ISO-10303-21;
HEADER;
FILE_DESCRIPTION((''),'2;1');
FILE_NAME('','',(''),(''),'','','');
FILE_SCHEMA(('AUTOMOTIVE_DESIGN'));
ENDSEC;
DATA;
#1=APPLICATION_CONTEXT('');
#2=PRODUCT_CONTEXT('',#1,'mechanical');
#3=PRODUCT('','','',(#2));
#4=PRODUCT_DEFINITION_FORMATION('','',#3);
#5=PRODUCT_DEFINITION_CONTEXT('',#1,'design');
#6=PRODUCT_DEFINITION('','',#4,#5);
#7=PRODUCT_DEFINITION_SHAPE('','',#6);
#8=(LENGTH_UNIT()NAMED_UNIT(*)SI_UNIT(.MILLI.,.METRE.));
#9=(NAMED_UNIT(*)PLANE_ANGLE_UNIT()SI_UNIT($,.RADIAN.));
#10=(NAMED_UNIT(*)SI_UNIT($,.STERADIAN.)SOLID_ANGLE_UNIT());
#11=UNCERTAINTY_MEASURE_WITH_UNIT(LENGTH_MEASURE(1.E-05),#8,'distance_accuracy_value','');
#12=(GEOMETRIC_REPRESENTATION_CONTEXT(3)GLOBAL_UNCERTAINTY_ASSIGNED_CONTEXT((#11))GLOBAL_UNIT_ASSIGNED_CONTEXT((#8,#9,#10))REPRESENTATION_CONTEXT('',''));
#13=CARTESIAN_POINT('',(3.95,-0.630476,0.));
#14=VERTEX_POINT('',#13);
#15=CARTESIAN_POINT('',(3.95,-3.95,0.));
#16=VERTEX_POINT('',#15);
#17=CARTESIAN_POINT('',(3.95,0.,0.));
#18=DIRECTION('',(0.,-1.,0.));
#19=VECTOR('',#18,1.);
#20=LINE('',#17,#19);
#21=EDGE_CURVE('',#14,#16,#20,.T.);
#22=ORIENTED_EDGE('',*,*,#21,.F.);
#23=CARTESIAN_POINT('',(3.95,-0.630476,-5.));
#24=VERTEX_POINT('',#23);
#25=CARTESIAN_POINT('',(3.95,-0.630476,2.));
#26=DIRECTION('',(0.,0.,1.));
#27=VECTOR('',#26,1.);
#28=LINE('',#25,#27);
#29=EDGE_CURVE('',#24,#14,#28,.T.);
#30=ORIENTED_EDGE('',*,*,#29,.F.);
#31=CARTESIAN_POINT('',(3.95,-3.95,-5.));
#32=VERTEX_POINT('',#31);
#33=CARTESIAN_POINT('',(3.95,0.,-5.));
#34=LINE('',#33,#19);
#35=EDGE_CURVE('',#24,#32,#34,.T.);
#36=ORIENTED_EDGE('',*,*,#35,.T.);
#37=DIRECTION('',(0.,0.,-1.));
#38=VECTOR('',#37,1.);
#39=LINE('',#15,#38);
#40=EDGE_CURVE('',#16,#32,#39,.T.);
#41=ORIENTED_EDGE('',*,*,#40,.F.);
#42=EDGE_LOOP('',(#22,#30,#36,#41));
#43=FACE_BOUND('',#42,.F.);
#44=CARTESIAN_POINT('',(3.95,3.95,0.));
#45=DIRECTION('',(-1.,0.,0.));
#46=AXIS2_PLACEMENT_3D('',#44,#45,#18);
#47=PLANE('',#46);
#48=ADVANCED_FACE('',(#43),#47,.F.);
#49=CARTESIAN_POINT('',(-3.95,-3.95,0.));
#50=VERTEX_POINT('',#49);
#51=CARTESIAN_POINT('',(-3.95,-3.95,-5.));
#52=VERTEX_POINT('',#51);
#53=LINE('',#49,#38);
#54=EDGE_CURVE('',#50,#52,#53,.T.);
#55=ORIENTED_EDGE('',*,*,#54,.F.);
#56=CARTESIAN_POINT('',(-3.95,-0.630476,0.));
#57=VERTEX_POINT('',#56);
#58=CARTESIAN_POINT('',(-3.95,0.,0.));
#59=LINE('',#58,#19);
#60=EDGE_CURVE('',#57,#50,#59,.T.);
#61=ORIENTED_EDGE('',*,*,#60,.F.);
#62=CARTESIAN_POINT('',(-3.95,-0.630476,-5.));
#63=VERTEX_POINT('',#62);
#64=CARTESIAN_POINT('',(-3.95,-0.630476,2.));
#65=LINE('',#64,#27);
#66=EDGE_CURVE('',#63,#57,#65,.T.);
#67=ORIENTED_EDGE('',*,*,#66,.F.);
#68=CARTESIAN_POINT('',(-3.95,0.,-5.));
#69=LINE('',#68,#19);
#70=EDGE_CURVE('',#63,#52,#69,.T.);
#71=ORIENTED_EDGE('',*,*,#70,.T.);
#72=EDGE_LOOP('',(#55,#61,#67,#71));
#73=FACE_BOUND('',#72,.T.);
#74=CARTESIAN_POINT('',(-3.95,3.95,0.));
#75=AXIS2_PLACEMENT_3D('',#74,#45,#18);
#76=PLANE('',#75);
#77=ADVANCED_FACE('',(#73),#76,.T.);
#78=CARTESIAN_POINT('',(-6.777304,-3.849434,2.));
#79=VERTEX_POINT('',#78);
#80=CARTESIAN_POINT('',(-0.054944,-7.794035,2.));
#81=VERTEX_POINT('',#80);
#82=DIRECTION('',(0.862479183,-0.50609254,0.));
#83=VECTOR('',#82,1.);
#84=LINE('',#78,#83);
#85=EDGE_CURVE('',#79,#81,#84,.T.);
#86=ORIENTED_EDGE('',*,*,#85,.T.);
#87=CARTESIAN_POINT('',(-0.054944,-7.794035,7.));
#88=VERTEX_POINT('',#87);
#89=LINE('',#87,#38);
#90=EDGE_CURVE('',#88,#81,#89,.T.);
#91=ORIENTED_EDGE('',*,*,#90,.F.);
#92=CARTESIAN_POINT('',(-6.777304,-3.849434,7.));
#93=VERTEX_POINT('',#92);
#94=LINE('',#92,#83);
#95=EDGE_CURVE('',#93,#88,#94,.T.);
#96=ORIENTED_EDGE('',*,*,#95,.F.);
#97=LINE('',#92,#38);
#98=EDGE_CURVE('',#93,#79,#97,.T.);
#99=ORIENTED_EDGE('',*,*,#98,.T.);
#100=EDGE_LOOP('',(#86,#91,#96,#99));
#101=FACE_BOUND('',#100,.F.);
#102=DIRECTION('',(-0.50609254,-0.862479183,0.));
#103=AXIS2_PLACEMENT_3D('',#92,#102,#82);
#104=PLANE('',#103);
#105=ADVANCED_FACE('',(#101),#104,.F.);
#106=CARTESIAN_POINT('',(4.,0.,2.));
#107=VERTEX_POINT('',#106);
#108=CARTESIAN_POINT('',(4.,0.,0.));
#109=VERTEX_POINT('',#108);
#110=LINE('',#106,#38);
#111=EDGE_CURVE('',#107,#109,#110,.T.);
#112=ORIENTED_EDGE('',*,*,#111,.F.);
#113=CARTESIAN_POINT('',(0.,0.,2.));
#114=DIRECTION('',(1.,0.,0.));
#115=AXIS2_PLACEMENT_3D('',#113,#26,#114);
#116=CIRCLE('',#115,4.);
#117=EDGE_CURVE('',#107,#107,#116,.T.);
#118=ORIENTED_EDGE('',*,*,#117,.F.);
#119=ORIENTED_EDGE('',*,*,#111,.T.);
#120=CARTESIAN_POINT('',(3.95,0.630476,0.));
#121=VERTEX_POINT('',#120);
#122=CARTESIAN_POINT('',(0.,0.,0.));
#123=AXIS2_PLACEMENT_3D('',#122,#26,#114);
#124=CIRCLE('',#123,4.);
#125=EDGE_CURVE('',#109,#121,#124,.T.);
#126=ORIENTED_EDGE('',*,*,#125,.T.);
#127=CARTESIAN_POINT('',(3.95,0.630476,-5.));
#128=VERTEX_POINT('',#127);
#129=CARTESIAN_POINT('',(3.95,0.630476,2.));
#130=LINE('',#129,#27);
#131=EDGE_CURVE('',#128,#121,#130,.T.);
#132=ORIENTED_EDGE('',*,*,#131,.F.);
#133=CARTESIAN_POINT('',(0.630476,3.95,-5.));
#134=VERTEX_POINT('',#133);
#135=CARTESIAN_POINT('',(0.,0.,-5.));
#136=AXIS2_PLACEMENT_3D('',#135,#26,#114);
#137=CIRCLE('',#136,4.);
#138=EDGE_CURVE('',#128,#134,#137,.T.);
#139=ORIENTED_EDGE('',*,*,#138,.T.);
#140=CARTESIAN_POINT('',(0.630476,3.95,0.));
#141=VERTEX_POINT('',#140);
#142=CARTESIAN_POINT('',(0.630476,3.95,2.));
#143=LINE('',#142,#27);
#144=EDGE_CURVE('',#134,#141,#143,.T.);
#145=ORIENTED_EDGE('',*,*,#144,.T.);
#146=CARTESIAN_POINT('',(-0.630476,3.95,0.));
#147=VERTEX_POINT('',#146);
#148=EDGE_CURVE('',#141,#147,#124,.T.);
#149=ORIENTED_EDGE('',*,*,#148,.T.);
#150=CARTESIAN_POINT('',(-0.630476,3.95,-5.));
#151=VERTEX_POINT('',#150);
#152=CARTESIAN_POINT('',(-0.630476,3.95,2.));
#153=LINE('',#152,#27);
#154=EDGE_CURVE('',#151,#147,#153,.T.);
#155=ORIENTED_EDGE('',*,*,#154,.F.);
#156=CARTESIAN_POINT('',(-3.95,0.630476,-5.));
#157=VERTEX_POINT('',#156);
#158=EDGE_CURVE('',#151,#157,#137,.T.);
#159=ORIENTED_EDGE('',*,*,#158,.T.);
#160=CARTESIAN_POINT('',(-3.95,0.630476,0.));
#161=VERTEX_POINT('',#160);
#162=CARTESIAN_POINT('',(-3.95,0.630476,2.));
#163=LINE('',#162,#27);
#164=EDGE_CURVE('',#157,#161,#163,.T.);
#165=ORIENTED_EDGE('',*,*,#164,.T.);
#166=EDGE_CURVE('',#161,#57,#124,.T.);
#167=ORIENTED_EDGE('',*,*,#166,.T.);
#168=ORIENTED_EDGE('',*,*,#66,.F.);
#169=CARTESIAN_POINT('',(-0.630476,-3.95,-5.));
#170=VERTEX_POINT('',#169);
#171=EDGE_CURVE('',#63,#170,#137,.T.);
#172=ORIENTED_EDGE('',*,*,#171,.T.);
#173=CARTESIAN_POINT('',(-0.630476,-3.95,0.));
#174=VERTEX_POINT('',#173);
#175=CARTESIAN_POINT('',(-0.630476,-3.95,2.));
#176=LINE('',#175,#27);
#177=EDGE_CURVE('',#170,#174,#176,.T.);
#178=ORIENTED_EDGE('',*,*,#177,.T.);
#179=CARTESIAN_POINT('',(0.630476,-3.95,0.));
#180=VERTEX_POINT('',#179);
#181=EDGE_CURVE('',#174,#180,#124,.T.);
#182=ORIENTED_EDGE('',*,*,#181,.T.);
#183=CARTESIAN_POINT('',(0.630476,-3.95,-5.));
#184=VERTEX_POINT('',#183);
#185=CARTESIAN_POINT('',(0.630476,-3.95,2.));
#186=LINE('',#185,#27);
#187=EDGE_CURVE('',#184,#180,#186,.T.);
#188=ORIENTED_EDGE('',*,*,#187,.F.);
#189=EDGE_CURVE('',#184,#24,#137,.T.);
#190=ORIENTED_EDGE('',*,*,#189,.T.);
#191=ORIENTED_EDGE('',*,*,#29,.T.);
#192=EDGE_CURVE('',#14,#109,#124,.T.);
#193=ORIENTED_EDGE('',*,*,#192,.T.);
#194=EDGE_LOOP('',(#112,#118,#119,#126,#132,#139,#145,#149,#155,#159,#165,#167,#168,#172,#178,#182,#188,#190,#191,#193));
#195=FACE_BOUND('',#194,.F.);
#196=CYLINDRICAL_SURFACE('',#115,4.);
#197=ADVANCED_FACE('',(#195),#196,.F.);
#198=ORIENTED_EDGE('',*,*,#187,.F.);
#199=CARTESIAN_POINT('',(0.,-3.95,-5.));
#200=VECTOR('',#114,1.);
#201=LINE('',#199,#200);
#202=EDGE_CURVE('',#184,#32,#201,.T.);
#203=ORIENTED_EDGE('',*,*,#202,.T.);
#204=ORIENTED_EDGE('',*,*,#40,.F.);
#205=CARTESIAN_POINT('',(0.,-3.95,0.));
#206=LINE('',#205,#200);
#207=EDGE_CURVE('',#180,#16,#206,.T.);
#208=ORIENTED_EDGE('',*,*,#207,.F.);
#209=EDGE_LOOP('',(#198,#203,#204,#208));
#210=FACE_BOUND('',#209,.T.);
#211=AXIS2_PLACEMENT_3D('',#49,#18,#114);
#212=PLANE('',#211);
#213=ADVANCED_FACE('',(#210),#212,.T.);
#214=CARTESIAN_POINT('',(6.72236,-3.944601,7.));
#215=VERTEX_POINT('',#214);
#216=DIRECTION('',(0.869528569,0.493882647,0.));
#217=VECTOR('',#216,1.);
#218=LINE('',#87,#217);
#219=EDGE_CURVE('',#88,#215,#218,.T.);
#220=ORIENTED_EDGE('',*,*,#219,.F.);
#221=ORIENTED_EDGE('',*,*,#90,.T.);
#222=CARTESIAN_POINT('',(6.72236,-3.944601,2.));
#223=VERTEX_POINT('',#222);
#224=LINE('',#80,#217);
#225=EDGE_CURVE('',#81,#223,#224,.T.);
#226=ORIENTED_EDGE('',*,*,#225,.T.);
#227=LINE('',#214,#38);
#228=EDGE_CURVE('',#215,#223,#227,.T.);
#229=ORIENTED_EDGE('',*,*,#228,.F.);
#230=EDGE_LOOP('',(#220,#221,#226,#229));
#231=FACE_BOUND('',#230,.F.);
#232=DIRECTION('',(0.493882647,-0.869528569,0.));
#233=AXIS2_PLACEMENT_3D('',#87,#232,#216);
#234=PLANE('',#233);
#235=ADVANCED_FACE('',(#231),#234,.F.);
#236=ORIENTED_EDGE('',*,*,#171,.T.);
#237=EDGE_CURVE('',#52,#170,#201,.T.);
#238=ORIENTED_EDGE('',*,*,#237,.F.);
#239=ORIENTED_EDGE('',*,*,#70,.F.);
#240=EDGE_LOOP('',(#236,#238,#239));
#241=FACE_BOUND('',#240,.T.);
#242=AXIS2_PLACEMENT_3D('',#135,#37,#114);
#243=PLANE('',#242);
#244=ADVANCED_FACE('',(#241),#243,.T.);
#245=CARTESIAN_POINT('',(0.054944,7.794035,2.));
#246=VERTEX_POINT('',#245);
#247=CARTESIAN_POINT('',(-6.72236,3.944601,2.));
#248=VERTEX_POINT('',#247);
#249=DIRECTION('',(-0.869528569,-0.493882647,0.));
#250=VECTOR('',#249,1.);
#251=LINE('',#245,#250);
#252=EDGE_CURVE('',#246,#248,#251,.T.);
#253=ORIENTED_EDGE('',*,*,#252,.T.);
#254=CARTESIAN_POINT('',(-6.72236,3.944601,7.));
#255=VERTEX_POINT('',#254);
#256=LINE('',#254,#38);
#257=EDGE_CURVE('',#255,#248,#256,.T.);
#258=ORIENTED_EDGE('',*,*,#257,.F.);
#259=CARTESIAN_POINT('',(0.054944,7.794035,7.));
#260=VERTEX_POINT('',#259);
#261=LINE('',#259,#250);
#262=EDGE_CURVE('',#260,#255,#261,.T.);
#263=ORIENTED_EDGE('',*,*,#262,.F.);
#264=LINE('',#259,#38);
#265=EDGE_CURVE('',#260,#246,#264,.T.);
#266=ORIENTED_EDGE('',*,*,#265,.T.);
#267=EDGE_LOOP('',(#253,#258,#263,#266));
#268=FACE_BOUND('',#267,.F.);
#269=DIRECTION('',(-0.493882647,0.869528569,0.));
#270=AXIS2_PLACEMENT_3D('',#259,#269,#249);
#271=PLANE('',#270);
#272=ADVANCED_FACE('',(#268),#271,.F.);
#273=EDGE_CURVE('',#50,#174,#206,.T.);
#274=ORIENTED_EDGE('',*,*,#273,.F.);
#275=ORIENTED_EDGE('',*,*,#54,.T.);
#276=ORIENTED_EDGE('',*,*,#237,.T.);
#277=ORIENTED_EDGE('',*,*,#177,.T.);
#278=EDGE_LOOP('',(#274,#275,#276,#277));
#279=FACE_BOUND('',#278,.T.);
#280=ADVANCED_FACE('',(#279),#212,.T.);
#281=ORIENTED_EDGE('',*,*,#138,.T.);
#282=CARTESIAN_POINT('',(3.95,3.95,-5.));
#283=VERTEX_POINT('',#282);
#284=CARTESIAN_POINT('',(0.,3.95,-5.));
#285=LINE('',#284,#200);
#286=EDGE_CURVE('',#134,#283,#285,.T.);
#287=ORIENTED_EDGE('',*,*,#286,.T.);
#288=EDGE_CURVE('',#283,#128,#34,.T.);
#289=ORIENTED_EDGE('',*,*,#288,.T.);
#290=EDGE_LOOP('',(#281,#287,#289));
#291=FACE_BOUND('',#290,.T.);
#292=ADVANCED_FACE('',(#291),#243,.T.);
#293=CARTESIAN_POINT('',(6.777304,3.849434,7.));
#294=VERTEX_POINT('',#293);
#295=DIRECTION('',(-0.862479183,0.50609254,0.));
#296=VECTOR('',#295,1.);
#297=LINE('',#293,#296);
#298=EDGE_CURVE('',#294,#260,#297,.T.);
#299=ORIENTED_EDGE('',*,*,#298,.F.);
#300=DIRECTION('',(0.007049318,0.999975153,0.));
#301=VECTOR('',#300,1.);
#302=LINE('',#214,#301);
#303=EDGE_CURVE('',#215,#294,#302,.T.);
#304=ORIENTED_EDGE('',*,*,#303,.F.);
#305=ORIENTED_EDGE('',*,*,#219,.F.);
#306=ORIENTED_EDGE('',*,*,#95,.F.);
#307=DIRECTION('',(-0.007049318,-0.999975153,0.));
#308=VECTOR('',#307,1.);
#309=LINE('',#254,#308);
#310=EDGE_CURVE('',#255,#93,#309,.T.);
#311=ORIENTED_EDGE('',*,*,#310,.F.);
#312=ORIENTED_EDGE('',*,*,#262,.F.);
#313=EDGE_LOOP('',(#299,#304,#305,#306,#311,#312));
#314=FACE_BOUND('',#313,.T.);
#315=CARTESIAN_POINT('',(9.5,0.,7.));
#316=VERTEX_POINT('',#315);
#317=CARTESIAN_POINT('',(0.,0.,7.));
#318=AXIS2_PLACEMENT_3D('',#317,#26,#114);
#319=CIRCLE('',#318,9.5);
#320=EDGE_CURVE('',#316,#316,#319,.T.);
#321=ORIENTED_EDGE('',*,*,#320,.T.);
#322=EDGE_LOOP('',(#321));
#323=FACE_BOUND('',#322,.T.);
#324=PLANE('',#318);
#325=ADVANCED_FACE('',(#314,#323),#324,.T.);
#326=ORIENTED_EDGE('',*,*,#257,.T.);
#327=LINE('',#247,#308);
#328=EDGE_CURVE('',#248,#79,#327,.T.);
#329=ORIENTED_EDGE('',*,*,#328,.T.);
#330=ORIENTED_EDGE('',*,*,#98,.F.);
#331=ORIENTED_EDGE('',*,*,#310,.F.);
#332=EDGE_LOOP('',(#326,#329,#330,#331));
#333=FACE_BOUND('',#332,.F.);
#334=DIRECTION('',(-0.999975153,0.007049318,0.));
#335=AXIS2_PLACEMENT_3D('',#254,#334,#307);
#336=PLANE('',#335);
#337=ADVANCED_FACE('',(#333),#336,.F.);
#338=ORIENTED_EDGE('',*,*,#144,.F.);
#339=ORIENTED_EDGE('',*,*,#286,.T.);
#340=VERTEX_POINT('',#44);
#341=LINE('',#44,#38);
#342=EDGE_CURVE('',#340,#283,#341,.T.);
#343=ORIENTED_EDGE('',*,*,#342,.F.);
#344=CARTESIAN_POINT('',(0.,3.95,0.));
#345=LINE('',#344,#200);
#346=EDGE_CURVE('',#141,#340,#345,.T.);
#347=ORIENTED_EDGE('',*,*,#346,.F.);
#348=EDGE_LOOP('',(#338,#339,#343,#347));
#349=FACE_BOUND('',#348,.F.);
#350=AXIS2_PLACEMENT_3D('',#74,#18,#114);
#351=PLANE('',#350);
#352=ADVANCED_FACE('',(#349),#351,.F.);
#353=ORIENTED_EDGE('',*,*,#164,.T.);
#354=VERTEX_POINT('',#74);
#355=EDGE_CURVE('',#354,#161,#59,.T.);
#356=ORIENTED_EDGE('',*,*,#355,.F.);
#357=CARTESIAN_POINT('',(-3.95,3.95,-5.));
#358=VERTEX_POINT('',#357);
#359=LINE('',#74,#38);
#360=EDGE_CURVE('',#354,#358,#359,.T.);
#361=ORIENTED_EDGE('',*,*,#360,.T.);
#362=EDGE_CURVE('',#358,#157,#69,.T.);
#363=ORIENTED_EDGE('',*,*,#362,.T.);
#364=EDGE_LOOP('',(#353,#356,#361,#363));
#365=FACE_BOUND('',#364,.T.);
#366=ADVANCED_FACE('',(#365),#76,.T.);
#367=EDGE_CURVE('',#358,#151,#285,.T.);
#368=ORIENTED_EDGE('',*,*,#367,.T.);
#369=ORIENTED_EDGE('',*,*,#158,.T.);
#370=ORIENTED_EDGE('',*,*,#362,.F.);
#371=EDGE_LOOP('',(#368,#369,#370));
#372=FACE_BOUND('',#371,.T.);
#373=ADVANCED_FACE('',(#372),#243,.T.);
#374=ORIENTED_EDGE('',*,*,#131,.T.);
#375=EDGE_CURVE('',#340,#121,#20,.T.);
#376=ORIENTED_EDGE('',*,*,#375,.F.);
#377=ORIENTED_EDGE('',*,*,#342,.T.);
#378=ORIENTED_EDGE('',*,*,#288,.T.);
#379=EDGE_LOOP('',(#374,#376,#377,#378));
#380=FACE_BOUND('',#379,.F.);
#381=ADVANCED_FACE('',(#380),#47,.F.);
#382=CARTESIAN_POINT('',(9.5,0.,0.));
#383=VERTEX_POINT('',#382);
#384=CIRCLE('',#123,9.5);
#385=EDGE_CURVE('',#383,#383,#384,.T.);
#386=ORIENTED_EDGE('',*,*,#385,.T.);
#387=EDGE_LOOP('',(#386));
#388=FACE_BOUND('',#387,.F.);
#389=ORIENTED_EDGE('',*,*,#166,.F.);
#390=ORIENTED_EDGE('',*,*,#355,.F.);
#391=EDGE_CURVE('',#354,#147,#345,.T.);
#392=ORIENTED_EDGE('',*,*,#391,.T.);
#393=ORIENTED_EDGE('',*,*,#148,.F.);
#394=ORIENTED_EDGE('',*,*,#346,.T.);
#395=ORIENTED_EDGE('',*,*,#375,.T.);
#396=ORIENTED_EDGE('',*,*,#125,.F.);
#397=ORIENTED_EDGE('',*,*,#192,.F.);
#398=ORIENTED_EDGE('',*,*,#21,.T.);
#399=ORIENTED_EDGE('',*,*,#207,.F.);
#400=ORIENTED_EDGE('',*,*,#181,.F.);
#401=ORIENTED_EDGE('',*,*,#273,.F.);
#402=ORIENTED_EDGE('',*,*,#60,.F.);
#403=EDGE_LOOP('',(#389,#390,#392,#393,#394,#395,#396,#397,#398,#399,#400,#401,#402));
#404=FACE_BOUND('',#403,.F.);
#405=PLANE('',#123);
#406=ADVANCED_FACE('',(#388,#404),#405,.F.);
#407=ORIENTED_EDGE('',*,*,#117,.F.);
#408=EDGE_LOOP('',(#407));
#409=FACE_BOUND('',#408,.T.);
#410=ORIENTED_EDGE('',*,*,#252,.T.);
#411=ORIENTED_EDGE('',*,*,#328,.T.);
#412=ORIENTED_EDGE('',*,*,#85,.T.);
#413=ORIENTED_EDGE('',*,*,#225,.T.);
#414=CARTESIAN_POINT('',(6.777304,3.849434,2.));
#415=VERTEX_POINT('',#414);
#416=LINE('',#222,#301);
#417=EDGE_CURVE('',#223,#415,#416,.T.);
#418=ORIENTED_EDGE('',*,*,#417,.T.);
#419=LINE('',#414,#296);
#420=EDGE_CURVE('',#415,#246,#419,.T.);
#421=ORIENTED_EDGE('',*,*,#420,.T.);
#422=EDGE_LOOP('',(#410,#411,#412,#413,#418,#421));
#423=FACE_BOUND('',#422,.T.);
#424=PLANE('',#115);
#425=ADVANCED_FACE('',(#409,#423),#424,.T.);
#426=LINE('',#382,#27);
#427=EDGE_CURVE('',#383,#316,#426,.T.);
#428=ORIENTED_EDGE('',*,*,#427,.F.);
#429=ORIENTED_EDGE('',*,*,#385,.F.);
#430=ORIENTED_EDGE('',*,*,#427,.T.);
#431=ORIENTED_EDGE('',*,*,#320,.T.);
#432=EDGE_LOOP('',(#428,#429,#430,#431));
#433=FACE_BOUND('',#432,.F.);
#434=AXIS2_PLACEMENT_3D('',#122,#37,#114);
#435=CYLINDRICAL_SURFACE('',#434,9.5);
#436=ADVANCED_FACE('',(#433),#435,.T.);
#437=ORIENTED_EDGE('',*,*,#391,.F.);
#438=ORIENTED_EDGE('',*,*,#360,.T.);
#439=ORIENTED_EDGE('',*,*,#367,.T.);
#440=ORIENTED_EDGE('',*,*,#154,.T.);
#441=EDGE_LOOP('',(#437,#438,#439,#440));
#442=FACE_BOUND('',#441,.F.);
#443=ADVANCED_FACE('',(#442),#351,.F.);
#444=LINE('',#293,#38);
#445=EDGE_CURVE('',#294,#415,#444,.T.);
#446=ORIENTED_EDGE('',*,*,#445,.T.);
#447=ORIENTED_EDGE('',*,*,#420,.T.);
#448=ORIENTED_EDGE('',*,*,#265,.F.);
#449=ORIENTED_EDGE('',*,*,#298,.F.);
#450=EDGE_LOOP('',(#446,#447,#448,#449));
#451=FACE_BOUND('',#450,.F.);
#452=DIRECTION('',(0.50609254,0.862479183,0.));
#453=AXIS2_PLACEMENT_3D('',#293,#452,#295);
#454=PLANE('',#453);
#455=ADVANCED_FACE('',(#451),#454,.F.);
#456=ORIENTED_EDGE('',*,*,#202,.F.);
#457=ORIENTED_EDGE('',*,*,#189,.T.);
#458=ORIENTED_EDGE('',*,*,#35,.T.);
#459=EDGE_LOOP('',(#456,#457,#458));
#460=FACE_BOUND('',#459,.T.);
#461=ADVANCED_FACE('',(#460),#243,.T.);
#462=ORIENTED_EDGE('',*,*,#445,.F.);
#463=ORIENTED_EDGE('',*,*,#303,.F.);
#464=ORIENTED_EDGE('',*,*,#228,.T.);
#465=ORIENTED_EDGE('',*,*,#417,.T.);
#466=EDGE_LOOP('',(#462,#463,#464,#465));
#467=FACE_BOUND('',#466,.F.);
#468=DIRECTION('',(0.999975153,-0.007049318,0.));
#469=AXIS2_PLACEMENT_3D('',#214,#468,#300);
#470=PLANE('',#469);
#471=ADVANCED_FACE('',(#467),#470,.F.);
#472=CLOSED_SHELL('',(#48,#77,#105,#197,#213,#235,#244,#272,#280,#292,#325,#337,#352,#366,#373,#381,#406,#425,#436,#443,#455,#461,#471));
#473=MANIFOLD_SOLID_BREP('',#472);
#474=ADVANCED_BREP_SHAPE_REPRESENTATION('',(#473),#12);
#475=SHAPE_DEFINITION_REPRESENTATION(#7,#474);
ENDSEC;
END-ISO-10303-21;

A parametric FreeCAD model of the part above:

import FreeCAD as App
import Part
import Sketcher

V = App.Vector

doc = App.newDocument("Part")
body = doc.addObject("PartDesign::Body", "Body")

sketch1 = doc.addObject("Sketcher::SketchObject", "Sketch")
body.addObject(sketch1)
sketch1.AttachmentSupport = (doc.XY_Plane, [""])
sketch1.MapMode = "FlatFace"
sketch1.addGeometry(Part.Circle(V(0, 0, 0), V(0, 0, 1), 10), False)
sketch1.addConstraint([
    Sketcher.Constraint("Coincident", 0, 3, -1, 1),
    Sketcher.Constraint("Diameter", 0, 19.0),
])
pad1 = doc.addObject("PartDesign::Pad", "Pad")
body.addObject(pad1)
pad1.Profile = sketch1
pad1.Length = 7

sketch2 = doc.addObject("Sketcher::SketchObject", "Sketch001")
body.addObject(sketch2)
sketch2.AttachmentSupport = (doc.XY_Plane, [""])
sketch2.MapMode = "FlatFace"
sketch2.AttachmentOffset = App.Placement(V(0, 0, 7), App.Rotation())
sketch2.addGeometry([
    Part.LineSegment(V(0, -8, 0), V(7, -4, 0)),
    Part.LineSegment(V(7, -4, 0), V(7, 4, 0)),
    Part.LineSegment(V(7, 4, 0), V(0, 8, 0)),
    Part.LineSegment(V(0, 8, 0), V(-7, 4, 0)),
    Part.LineSegment(V(-7, 4, 0), V(-7, -4, 0)),
    Part.LineSegment(V(-7, -4, 0), V(0, -8, 0)),
], False)
sketch2.addConstraint([
    Sketcher.Constraint("Coincident", 0, 2, 1, 1),
    Sketcher.Constraint("Coincident", 1, 2, 2, 1),
    Sketcher.Constraint("Coincident", 2, 2, 3, 1),
    Sketcher.Constraint("Coincident", 3, 2, 4, 1),
    Sketcher.Constraint("Coincident", 4, 2, 5, 1),
    Sketcher.Constraint("Coincident", 5, 2, 0, 1),
    Sketcher.Constraint("Symmetric", 0, 2, 3, 2, -1, 1),
    Sketcher.Constraint("Symmetric", 1, 2, 4, 2, -1, 1),
    Sketcher.Constraint("Symmetric", 2, 2, 5, 2, -1, 1),
    Sketcher.Constraint("Equal", 0, 1),
    Sketcher.Constraint("Equal", 1, 2),
    Sketcher.Constraint("DistanceY", 0, 2, -1, 1, 3.944601),
    Sketcher.Constraint("DistanceY", 1, 2, 2, 2, 3.944601),
    Sketcher.Constraint("Distance", 0, 7.794228),
    Sketcher.Constraint("DistanceX", -1, 1, 0, 2, 6.72236),
])
pocket1 = doc.addObject("PartDesign::Pocket", "Pocket")
body.addObject(pocket1)
pocket1.Profile = sketch2
pocket1.Length = 5

sketch3 = doc.addObject("Sketcher::SketchObject", "Sketch002")
body.addObject(sketch3)
sketch3.AttachmentSupport = (doc.XY_Plane, [""])
sketch3.MapMode = "FlatFace"
sketch3.addGeometry([
    Part.LineSegment(V(-4, -4, 0), V(-4, 4, 0)),
    Part.LineSegment(V(-4, 4, 0), V(4, 4, 0)),
    Part.LineSegment(V(4, 4, 0), V(4, -4, 0)),
    Part.LineSegment(V(4, -4, 0), V(-4, -4, 0)),
], False)
sketch3.addConstraint([
    Sketcher.Constraint("Coincident", 0, 2, 1, 1),
    Sketcher.Constraint("Coincident", 1, 2, 2, 1),
    Sketcher.Constraint("Coincident", 2, 2, 3, 1),
    Sketcher.Constraint("Coincident", 3, 2, 0, 1),
    Sketcher.Constraint("Vertical", 0),
    Sketcher.Constraint("Horizontal", 1),
    Sketcher.Constraint("Vertical", 2),
    Sketcher.Constraint("Horizontal", 3),
    Sketcher.Constraint("Symmetric", 0, 2, 2, 2, -1, 1),
    Sketcher.Constraint("Equal", 3, 0),
    Sketcher.Constraint("DistanceX", 1, 1, 1, 2, 7.9),
])
pad2 = doc.addObject("PartDesign::Pad", "Pad001")
body.addObject(pad2)
pad2.Profile = sketch3
pad2.Length = 5
pad2.Reversed = True

sketch4 = doc.addObject("Sketcher::SketchObject", "Sketch003")
body.addObject(sketch4)
sketch4.AttachmentSupport = (doc.XY_Plane, [""])
sketch4.MapMode = "FlatFace"
sketch4.AttachmentOffset = App.Placement(V(0, 0, 2), App.Rotation())
sketch4.addGeometry(Part.Circle(V(0, 0, 0), V(0, 0, 1), 4), False)
sketch4.addConstraint([
    Sketcher.Constraint("Coincident", 0, 3, -1, 1),
    Sketcher.Constraint("Diameter", 0, 8.0),
])
pocket2 = doc.addObject("PartDesign::Pocket", "Pocket001")
body.addObject(pocket2)
pocket2.Profile = sketch4
pocket2.Type = "ThroughAll"

doc.recompute()
